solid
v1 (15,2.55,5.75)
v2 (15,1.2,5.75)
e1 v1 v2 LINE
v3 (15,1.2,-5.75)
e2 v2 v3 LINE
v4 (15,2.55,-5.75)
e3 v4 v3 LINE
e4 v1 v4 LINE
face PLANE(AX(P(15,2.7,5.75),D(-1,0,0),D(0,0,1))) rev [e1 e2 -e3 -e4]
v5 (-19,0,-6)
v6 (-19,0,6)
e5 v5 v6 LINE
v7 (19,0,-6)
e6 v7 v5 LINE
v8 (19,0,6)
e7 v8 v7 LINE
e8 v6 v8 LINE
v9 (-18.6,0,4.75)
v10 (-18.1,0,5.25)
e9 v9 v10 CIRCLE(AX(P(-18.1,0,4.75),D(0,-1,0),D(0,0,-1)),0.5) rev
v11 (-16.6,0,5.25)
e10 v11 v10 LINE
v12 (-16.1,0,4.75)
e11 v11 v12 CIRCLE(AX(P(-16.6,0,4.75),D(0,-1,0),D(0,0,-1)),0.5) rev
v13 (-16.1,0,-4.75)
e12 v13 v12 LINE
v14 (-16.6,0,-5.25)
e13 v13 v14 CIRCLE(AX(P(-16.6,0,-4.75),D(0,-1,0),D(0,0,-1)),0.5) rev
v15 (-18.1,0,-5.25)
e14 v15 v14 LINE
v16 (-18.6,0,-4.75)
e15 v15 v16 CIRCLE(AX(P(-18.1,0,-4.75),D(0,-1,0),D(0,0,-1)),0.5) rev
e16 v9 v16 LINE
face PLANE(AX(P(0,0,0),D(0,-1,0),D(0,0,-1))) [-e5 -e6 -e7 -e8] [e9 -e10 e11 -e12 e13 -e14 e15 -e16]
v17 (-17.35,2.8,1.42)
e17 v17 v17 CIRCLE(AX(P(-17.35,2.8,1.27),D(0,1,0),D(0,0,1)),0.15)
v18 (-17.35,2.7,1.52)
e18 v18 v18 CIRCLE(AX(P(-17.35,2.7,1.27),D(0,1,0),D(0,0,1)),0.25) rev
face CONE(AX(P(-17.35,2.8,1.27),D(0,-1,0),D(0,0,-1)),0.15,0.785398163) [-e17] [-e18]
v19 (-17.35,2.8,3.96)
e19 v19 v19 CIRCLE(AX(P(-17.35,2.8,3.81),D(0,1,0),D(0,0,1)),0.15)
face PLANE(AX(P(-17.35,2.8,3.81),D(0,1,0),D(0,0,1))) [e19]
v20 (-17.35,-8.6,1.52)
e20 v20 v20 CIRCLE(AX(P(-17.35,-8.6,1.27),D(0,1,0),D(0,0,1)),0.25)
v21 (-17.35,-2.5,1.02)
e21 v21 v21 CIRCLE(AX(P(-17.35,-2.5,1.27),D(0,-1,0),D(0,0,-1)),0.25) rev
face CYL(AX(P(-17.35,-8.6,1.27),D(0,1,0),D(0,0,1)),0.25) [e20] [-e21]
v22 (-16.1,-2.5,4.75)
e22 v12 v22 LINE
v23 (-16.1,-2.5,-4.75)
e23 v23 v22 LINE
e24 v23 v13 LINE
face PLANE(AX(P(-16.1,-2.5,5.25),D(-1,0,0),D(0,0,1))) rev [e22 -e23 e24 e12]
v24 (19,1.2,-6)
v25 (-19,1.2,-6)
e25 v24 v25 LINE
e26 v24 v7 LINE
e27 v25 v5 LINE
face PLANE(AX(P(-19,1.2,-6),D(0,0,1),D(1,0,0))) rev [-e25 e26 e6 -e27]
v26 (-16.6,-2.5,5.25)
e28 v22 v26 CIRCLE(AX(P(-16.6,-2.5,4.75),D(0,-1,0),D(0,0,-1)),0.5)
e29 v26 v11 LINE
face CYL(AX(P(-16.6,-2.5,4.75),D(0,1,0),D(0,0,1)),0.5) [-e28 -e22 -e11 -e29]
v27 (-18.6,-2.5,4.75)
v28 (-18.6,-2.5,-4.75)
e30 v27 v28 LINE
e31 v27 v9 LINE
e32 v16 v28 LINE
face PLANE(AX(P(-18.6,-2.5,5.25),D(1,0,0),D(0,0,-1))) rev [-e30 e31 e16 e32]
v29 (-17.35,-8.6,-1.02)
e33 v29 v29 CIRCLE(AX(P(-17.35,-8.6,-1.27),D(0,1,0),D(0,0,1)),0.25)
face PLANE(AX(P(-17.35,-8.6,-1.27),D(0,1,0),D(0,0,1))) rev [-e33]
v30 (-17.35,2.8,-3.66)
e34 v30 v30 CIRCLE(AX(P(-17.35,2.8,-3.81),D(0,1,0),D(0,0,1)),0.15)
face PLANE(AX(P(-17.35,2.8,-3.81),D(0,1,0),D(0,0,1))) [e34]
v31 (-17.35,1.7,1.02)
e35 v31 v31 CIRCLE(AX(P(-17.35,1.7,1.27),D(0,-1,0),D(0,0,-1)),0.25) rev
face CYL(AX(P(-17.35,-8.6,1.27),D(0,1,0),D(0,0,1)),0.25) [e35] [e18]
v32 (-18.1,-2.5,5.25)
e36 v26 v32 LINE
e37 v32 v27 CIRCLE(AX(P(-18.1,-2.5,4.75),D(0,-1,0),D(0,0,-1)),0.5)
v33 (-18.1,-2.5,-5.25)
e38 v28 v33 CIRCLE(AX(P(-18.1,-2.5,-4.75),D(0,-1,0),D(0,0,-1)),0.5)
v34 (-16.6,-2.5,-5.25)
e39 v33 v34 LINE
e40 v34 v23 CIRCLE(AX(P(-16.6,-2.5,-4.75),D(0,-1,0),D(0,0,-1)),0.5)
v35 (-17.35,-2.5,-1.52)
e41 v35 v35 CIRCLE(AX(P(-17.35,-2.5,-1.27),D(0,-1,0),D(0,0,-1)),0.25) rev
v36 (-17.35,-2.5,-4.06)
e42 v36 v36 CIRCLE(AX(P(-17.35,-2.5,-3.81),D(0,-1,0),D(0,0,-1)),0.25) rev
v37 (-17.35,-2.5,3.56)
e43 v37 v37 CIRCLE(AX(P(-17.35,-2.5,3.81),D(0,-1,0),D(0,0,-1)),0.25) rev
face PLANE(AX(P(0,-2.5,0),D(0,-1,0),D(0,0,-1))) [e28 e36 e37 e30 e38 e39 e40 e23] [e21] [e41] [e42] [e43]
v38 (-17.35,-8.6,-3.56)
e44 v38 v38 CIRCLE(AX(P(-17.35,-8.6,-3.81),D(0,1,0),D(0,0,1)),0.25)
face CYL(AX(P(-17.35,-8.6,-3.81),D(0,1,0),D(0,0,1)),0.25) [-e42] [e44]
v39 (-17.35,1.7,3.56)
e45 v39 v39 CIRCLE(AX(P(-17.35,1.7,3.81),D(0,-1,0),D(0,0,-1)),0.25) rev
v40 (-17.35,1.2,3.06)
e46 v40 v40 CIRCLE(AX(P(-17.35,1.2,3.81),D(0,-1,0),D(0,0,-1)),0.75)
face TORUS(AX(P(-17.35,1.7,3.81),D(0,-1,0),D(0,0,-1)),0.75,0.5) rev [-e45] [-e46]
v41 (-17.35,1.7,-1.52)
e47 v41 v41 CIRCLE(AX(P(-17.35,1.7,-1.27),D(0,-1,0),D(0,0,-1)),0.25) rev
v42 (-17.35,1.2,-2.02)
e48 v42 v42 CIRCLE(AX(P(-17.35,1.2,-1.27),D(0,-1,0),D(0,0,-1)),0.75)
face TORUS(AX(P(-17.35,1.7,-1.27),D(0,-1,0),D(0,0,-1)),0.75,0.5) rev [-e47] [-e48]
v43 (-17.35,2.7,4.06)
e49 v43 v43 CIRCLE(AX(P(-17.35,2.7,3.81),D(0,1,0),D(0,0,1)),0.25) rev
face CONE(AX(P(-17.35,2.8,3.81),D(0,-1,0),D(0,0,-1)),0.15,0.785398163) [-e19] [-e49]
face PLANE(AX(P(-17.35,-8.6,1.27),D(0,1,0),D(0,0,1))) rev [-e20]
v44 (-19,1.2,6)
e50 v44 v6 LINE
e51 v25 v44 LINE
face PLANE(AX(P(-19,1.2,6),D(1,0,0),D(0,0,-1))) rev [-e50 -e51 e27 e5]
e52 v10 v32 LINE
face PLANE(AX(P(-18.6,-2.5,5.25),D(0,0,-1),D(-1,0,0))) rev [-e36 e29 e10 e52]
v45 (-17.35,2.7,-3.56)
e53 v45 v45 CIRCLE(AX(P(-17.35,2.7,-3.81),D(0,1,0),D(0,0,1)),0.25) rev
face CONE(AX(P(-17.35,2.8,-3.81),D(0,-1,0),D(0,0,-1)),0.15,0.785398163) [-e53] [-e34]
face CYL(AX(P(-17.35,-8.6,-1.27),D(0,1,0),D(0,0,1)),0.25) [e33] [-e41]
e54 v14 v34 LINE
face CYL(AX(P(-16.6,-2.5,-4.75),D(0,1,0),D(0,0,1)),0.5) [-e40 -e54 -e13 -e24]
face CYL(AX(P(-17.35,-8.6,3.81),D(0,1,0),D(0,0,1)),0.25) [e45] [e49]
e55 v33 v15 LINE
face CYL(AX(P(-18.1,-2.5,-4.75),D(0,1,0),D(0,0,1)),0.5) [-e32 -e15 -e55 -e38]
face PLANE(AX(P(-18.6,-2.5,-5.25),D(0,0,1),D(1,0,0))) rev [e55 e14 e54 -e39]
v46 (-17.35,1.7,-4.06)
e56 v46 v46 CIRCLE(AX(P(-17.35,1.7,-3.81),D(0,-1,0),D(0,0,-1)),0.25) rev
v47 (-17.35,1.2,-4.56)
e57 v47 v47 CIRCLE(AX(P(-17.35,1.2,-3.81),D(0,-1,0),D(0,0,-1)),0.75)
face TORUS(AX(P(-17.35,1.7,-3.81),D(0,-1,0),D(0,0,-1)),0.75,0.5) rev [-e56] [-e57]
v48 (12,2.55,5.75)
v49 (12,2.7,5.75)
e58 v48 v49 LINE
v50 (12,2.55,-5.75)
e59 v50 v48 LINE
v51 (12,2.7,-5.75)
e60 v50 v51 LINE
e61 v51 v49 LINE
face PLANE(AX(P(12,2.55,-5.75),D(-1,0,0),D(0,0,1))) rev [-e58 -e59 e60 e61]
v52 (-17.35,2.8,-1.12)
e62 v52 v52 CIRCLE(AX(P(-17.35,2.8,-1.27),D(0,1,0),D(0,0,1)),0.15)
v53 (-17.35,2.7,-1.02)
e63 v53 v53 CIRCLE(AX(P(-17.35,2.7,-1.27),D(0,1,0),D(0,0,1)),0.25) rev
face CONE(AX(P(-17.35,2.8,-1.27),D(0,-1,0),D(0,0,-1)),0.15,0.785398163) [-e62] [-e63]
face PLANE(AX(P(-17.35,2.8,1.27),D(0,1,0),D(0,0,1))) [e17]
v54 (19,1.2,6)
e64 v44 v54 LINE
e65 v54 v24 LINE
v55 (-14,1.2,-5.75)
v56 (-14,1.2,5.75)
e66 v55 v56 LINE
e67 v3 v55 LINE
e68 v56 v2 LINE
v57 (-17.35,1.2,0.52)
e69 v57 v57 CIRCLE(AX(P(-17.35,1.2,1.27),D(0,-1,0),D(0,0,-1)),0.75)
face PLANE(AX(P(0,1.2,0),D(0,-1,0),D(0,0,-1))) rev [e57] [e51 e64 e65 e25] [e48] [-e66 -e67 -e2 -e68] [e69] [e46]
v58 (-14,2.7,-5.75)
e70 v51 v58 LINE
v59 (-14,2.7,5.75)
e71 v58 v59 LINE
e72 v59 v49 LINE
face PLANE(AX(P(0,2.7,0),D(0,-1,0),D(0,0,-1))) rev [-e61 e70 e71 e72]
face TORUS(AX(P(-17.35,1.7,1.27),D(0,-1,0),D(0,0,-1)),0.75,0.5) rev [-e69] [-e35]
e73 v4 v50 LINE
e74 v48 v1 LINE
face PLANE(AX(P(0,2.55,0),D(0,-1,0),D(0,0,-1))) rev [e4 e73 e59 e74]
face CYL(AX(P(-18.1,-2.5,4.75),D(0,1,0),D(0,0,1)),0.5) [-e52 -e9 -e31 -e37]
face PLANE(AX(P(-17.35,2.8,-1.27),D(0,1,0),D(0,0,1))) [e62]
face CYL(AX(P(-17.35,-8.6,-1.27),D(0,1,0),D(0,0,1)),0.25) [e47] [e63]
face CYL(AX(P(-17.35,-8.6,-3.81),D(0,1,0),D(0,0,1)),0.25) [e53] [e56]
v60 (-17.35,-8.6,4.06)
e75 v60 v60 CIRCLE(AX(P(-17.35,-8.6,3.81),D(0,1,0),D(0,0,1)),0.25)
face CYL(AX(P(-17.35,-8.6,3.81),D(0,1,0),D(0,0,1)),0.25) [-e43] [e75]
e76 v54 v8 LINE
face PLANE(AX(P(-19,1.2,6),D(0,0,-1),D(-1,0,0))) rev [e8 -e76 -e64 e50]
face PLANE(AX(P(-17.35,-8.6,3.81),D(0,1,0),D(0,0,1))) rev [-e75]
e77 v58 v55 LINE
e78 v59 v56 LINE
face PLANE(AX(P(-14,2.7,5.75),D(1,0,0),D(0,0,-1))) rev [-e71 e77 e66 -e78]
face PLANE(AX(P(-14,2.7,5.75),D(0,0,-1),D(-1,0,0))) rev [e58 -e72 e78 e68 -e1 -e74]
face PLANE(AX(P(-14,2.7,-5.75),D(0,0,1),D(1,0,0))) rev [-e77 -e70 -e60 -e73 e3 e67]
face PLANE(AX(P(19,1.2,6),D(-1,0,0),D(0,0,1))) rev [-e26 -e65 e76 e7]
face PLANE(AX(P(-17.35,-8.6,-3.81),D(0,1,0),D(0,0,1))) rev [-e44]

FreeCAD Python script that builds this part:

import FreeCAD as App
import Part
import Sketcher
from FreeCAD import Vector
Q = App.Units.Quantity


def edges_at(feature, points):
    """Names of the edges that pass closest to the given points."""
    edges = feature.Shape.Edges
    near = lambda p: min(range(len(edges)), key=lambda i: edges[i].distToShape(Part.Vertex(*p))[0])
    return sorted({f"Edge{near(p) + 1}" for p in points})

doc = App.newDocument("Part")
body = doc.addObject("PartDesign::Body", "Body")

sketch1 = body.newObject("Sketcher::SketchObject", "Sketch")
sketch1.AttachmentSupport = (doc.getObject("XZ_Plane"), [""])
sketch1.MapMode = "FlatFace"
sketch1.addGeometry(Part.LineSegment(Vector(-19, -6, 0), Vector(-19, 6, 0)), False)
sketch1.addGeometry(Part.LineSegment(Vector(-19, 6, 0), Vector(19, 6, 0)), False)
sketch1.addGeometry(Part.LineSegment(Vector(19, 6, 0), Vector(19, -6, 0)), False)
sketch1.addGeometry(Part.LineSegment(Vector(19, -6, 0), Vector(-19, -6, 0)), False)
sketch1.addConstraint(Sketcher.Constraint("Coincident", 0, 2, 1, 1))
sketch1.addConstraint(Sketcher.Constraint("Coincident", 1, 2, 2, 1))
sketch1.addConstraint(Sketcher.Constraint("Coincident", 2, 2, 3, 1))
sketch1.addConstraint(Sketcher.Constraint("Coincident", 3, 2, 0, 1))
sketch1.addConstraint(Sketcher.Constraint("Vertical", 0))
sketch1.addConstraint(Sketcher.Constraint("Horizontal", 1))
sketch1.addConstraint(Sketcher.Constraint("Vertical", 2))
sketch1.addConstraint(Sketcher.Constraint("Horizontal", 3))
sketch1.addConstraint(Sketcher.Constraint("Symmetric", 0, 2, 2, 2, -1, 1))
sketch1.addConstraint(Sketcher.Constraint("DistanceX", 1, 1, 1, 2, Q("38 mm")))
sketch1.addConstraint(Sketcher.Constraint("DistanceY", 0, 1, 0, 2, Q("12 mm")))
pad1 = body.newObject("PartDesign::Pad", "Pad")
pad1.Profile = sketch1
pad1.Length = 1.2
pad1.Reversed = True

sketch2 = body.newObject("Sketcher::SketchObject", "Sketch001")
sketch2.AttachmentSupport = (doc.getObject("XZ_Plane"), [""])
sketch2.MapMode = "FlatFace"
sketch2.AttachmentOffset = App.Placement(Vector(0, 0, -1.2), App.Rotation())
sketch2.addGeometry(Part.LineSegment(Vector(-14, -6, 0), Vector(-14, 6, 0)), False)
sketch2.addGeometry(Part.LineSegment(Vector(-14, 6, 0), Vector(15, 6, 0)), False)
sketch2.addGeometry(Part.LineSegment(Vector(15, 6, 0), Vector(15, -6, 0)), False)
sketch2.addGeometry(Part.LineSegment(Vector(15, -6, 0), Vector(-14, -6, 0)), False)
sketch2.addConstraint(Sketcher.Constraint("Coincident", 0, 2, 1, 1))
sketch2.addConstraint(Sketcher.Constraint("Coincident", 1, 2, 2, 1))
sketch2.addConstraint(Sketcher.Constraint("Coincident", 2, 2, 3, 1))
sketch2.addConstraint(Sketcher.Constraint("Coincident", 3, 2, 0, 1))
sketch2.addConstraint(Sketcher.Constraint("Vertical", 0))
sketch2.addConstraint(Sketcher.Constraint("Horizontal", 1))
sketch2.addConstraint(Sketcher.Constraint("Vertical", 2))
sketch2.addConstraint(Sketcher.Constraint("Horizontal", 3))
sketch2.addConstraint(Sketcher.Constraint("DistanceX", 1, 1, 1, 2, Q("29 mm")))
sketch2.addConstraint(Sketcher.Constraint("DistanceY", 0, 1, 0, 2, Q("11.5 mm")))
sketch2.addConstraint(Sketcher.Constraint("DistanceX", 0, 2, -1, 1, Q("14 mm")))
sketch2.addConstraint(Sketcher.Constraint("DistanceY", -1, 1, 0, 2, Q("5.75 mm")))
pad2 = body.newObject("PartDesign::Pad", "Pad001")
pad2.Profile = sketch2
pad2.Length = 1.5
pad2.Reversed = True

sketch3 = body.newObject("Sketcher::SketchObject", "Sketch002")
sketch3.AttachmentSupport = (doc.getObject("XZ_Plane"), [""])
sketch3.MapMode = "FlatFace"
sketch3.AttachmentOffset = App.Placement(Vector(0, 0, 8.6), App.Rotation())
sketch3.addGeometry(Part.Circle(Vector(-17.35, 3.81, 0), Vector(0, 0, 1), 0.25), False)
sketch3.addConstraint(Sketcher.Constraint("Diameter", 0, Q("0.5 mm")))
sketch3.addConstraint(Sketcher.Constraint("DistanceX", 0, 3, -1, 1, Q("17.35 mm")))
sketch3.addConstraint(Sketcher.Constraint("DistanceY", -1, 1, 0, 3, Q("3.81 mm")))
pad3 = body.newObject("PartDesign::Pad", "Pad002")
pad3.Profile = sketch3
pad3.Length = 11.4
pad3.Reversed = True
doc.recompute()

chamfer = body.newObject("PartDesign::Chamfer", "Chamfer")
chamfer.Base = (pad3, edges_at(pad3, [(-17.6, 2.8, 3.81)]))
chamfer.Size = 0.1
doc.recompute()

fillet = body.newObject("PartDesign::Fillet", "Fillet")
fillet.Base = (chamfer, edges_at(chamfer, [(-17.6, 1.2, 3.81)]))
fillet.Radius = 0.5
doc.recompute()

linearpattern = body.newObject("PartDesign::LinearPattern", "LinearPattern")
linearpattern.Originals = [pad3]
linearpattern.Direction = (doc.getObject("Z_Axis"), [""])
linearpattern.Mode = "offset"
linearpattern.Offset = 2.54
linearpattern.Occurrences = 4
linearpattern.Reversed = True
body.Tip = linearpattern
doc.recompute()

chamfer2 = body.newObject("PartDesign::Chamfer", "Chamfer001")
chamfer2.Base = (linearpattern, edges_at(linearpattern, [(-17.6, 2.8, 1.27), (-17.6, 2.8, -1.27), (-17.6, 2.8, -3.81)]))
chamfer2.Size = 0.1
doc.recompute()

fillet2 = body.newObject("PartDesign::Fillet", "Fillet001")
fillet2.Base = (chamfer2, edges_at(chamfer2, [(-17.6, 1.2, 1.27), (-17.6, 1.2, -1.27), (-17.6, 1.2, -3.81)]))
fillet2.Radius = 0.5

sketch4 = body.newObject("Sketcher::SketchObject", "Sketch003")
sketch4.AttachmentSupport = (doc.getObject("XZ_Plane"), [""])
sketch4.MapMode = "FlatFace"
sketch4.addGeometry(Part.LineSegment(Vector(-18.6, 5.2, 0), Vector(-18.6, -5.2, 0)), False)
sketch4.addGeometry(Part.LineSegment(Vector(-18.6, -5.2, 0), Vector(-16.1, -5.2, 0)), False)
sketch4.addGeometry(Part.LineSegment(Vector(-16.1, -5.2, 0), Vector(-16.1, 5.2, 0)), False)
sketch4.addGeometry(Part.LineSegment(Vector(-16.1, 5.2, 0), Vector(-18.6, 5.2, 0)), False)
sketch4.addConstraint(Sketcher.Constraint("Coincident", 0, 2, 1, 1))
sketch4.addConstraint(Sketcher.Constraint("Coincident", 1, 2, 2, 1))
sketch4.addConstraint(Sketcher.Constraint("Coincident", 2, 2, 3, 1))
sketch4.addConstraint(Sketcher.Constraint("Coincident", 3, 2, 0, 1))
sketch4.addConstraint(Sketcher.Constraint("Vertical", 0))
sketch4.addConstraint(Sketcher.Constraint("Horizontal", 1))
sketch4.addConstraint(Sketcher.Constraint("Vertical", 2))
sketch4.addConstraint(Sketcher.Constraint("Horizontal", 3))
sketch4.addConstraint(Sketcher.Constraint("DistanceX", 1, 1, 1, 2, Q("2.5 mm")))
sketch4.addConstraint(Sketcher.Constraint("DistanceY", 0, 2, 0, 1, Q("10.5 mm")))
sketch4.addConstraint(Sketcher.Constraint("DistanceX", 0, 2, -1, 1, Q("18.6 mm")))
sketch4.addConstraint(Sketcher.Constraint("DistanceY", 0, 2, -1, 1, Q("5.25 mm")))
pad4 = body.newObject("PartDesign::Pad", "Pad003")
pad4.Profile = sketch4
pad4.Length = 2.5
doc.recompute()

fillet3 = body.newObject("PartDesign::Fillet", "Fillet002")
fillet3.Base = (pad4, edges_at(pad4, [
    (-16.1, -1.25, -5.25),
    (-16.1, -1.25, 5.25),
    (-18.6, -1.25, 5.25),
    (-18.6, -1.25, -5.25),
]))
fillet3.Radius = 0.5

sketch5 = body.newObject("Sketcher::SketchObject", "Sketch004")
sketch5.AttachmentSupport = (doc.getObject("XZ_Plane"), [""])
sketch5.MapMode = "FlatFace"
sketch5.AttachmentOffset = App.Placement(Vector(0, 0, -2.7), App.Rotation())
sketch5.addGeometry(Part.LineSegment(Vector(12, -5.8, 0), Vector(12, 5.8, 0)), False)
sketch5.addGeometry(Part.LineSegment(Vector(12, 5.8, 0), Vector(15, 5.8, 0)), False)
sketch5.addGeometry(Part.LineSegment(Vector(15, 5.8, 0), Vector(15, -5.8, 0)), False)
sketch5.addGeometry(Part.LineSegment(Vector(15, -5.8, 0), Vector(12, -5.8, 0)), False)
sketch5.addConstraint(Sketcher.Constraint("Coincident", 0, 2, 1, 1))
sketch5.addConstraint(Sketcher.Constraint("Coincident", 1, 2, 2, 1))
sketch5.addConstraint(Sketcher.Constraint("Coincident", 2, 2, 3, 1))
sketch5.addConstraint(Sketcher.Constraint("Coincident", 3, 2, 0, 1))
sketch5.addConstraint(Sketcher.Constraint("Vertical", 0))
sketch5.addConstraint(Sketcher.Constraint("Horizontal", 1))
sketch5.addConstraint(Sketcher.Constraint("Vertical", 2))
sketch5.addConstraint(Sketcher.Constraint("Horizontal", 3))
sketch5.addConstraint(Sketcher.Constraint("DistanceX", 1, 1, 1, 2, Q("3 mm")))
sketch5.addConstraint(Sketcher.Constraint("DistanceY", 0, 1, 0, 2, Q("11.5 mm")))
sketch5.addConstraint(Sketcher.Constraint("DistanceX", -1, 1, 0, 2, Q("12 mm")))
sketch5.addConstraint(Sketcher.Constraint("DistanceY", -1, 1, 0, 2, Q("5.75 mm")))
pocket1 = body.newObject("PartDesign::Pocket", "Pocket")
pocket1.Profile = sketch5
pocket1.Length = 0.15
pocket1.Reversed = True

doc.recompute()
